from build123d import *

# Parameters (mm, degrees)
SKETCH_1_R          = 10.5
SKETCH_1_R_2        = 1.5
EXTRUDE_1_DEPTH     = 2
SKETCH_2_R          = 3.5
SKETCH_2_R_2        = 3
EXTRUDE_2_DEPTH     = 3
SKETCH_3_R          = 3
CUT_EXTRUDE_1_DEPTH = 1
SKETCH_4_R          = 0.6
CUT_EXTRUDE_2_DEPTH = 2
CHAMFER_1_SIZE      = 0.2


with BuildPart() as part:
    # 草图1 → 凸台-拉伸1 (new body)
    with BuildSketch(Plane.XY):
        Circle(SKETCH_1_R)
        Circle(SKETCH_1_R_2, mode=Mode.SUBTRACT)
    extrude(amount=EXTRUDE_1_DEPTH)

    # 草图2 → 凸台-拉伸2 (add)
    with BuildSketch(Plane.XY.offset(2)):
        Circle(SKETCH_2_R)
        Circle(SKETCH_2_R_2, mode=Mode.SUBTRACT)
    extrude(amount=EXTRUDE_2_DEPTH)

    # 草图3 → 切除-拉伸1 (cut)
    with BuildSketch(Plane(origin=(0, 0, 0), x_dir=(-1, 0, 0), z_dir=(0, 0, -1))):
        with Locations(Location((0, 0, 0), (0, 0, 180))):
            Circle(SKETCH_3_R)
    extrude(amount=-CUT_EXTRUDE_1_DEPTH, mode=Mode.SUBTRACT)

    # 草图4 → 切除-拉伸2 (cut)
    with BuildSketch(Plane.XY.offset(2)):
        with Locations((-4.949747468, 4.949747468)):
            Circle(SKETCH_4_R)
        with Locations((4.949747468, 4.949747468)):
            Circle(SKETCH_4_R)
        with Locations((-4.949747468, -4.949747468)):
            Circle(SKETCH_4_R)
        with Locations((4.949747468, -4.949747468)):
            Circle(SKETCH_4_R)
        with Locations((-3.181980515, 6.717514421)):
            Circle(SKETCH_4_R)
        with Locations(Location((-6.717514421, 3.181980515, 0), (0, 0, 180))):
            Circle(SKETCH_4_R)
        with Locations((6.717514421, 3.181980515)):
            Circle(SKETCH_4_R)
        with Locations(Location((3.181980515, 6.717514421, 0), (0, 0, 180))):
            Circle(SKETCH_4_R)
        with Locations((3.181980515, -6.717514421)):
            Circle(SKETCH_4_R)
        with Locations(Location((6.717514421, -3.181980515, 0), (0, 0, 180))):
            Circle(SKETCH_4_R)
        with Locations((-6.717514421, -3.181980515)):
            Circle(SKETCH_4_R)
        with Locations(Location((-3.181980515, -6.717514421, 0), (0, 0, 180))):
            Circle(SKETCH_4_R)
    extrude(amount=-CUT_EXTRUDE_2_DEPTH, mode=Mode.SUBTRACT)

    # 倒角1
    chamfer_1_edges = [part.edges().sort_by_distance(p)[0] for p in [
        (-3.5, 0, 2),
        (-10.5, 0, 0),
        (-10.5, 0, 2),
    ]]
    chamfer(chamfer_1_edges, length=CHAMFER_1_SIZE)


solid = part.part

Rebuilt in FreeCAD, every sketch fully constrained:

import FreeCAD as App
import Part
import Sketcher
Q = App.Units.Quantity


def edges_at(feature, points):
    """Names of the edges that pass closest to the given points."""
    edges = feature.Shape.Edges
    near = lambda p: min(range(len(edges)), key=lambda i: edges[i].distToShape(Part.Vertex(*p))[0])
    return sorted({f"Edge{near(p) + 1}" for p in points})

doc = App.newDocument("Part")
body = doc.addObject("PartDesign::Body", "Body")

# Sketch on XY plane
sketch1 = doc.addObject("Sketcher::SketchObject", "Sketch")
body.addObject(sketch1)
sketch1.AttachmentSupport = (doc.XY_Plane, [""])
sketch1.MapMode = "FlatFace"
sketch1.addGeometry([
    Part.Circle(App.Vector(0, 0, 0), App.Vector(0, 0, 1), 10.5),
    Part.Circle(App.Vector(0, 0, 0), App.Vector(0, 0, 1), 1.5),
], False)
sketch1.addConstraint([
    Sketcher.Constraint("Coincident", 0, 3, -1, 1),
    Sketcher.Constraint("Coincident", 1, 3, -1, 1),
    Sketcher.Constraint("Diameter", 0, Q("21 mm")),
    Sketcher.Constraint("Diameter", 1, Q("3 mm")),
])
pad1 = doc.addObject("PartDesign::Pad", "Pad")
body.addObject(pad1)
pad1.Profile = sketch1
pad1.Length = 2

# Sketch on XY plane
sketch2 = doc.addObject("Sketcher::SketchObject", "Sketch001")
body.addObject(sketch2)
sketch2.AttachmentSupport = (doc.XY_Plane, [""])
sketch2.MapMode = "FlatFace"
sketch2.AttachmentOffset = App.Placement(App.Vector(0, 0, 2), App.Rotation())
sketch2.addGeometry([
    Part.Circle(App.Vector(0, 0, 0), App.Vector(0, 0, 1), 3.5),
    Part.Circle(App.Vector(0, 0, 0), App.Vector(0, 0, 1), 3),
], False)
sketch2.addConstraint([
    Sketcher.Constraint("Coincident", 0, 3, -1, 1),
    Sketcher.Constraint("Coincident", 1, 3, -1, 1),
    Sketcher.Constraint("Diameter", 0, Q("7 mm")),
    Sketcher.Constraint("Diameter", 1, Q("6 mm")),
])
pad2 = doc.addObject("PartDesign::Pad", "Pad001")
body.addObject(pad2)
pad2.Profile = sketch2
pad2.Length = 3

# Sketch on XY plane
sketch3 = doc.addObject("Sketcher::SketchObject", "Sketch002")
body.addObject(sketch3)
sketch3.AttachmentSupport = (doc.XY_Plane, [""])
sketch3.MapMode = "FlatFace"
sketch3.addGeometry(Part.Circle(App.Vector(0, 0, 0), App.Vector(0, 0, 1), 3), False)
sketch3.addConstraint([
    Sketcher.Constraint("Coincident", 0, 3, -1, 1),
    Sketcher.Constraint("Diameter", 0, Q("6 mm")),
])
pocket1 = doc.addObject("PartDesign::Pocket", "Pocket")
body.addObject(pocket1)
pocket1.Profile = sketch3
pocket1.Length = 1
pocket1.Reversed = True

# Sketch on XY plane
sketch4 = doc.addObject("Sketcher::SketchObject", "Sketch003")
body.addObject(sketch4)
sketch4.AttachmentSupport = (doc.XY_Plane, [""])
sketch4.MapMode = "FlatFace"
sketch4.AttachmentOffset = App.Placement(App.Vector(0, 0, 2), App.Rotation())
sketch4.addGeometry([
    Part.Circle(App.Vector(-4.949747, 4.949747, 0), App.Vector(0, 0, 1), 0.6),  # 0
    Part.Circle(App.Vector(4.949747, 4.949747, 0), App.Vector(0, 0, 1), 0.6),  # 1
    Part.Circle(App.Vector(-4.949747, -4.949747, 0), App.Vector(0, 0, 1), 0.6),  # 2
    Part.Circle(App.Vector(4.949747, -4.949747, 0), App.Vector(0, 0, 1), 0.6),  # 3
    Part.Circle(App.Vector(-3.181981, 6.717514, 0), App.Vector(0, 0, 1), 0.6),  # 4
    Part.Circle(App.Vector(-6.717514, 3.181981, 0), App.Vector(0, 0, 1), 0.6),  # 5
    Part.Circle(App.Vector(6.717514, 3.181981, 0), App.Vector(0, 0, 1), 0.6),  # 6
    Part.Circle(App.Vector(3.181981, 6.717514, 0), App.Vector(0, 0, 1), 0.6),  # 7
    Part.Circle(App.Vector(3.181981, -6.717514, 0), App.Vector(0, 0, 1), 0.6),  # 8
    Part.Circle(App.Vector(6.717514, -3.181981, 0), App.Vector(0, 0, 1), 0.6),  # 9
    Part.Circle(App.Vector(-6.717514, -3.181981, 0), App.Vector(0, 0, 1), 0.6),  # 10
    Part.Circle(App.Vector(-3.181981, -6.717514, 0), App.Vector(0, 0, 1), 0.6),  # 11
], False)
sketch4.addConstraint([
    Sketcher.Constraint("Equal", 0, 1),
    Sketcher.Constraint("Equal", 1, 2),
    Sketcher.Constraint("Equal", 2, 3),
    Sketcher.Constraint("Equal", 3, 4),
    Sketcher.Constraint("Equal", 4, 5),
    Sketcher.Constraint("Equal", 5, 6),
    Sketcher.Constraint("Equal", 6, 7),
    Sketcher.Constraint("Equal", 7, 8),
    Sketcher.Constraint("Equal", 8, 9),
    Sketcher.Constraint("Equal", 9, 10),
    Sketcher.Constraint("Equal", 10, 11),
    Sketcher.Constraint("Symmetric", 1, 3, 2, 3, -1, 1),
    Sketcher.Constraint("Symmetric", 0, 3, 3, 3, -1, 1),
    Sketcher.Constraint("Symmetric", 4, 3, 8, 3, -1, 1),
    Sketcher.Constraint("Symmetric", 5, 3, 9, 3, -1, 1),
    Sketcher.Constraint("Symmetric", 6, 3, 10, 3, -1, 1),
    Sketcher.Constraint("Symmetric", 7, 3, 11, 3, -1, 1),
    Sketcher.Constraint("Symmetric", 0, 3, 1, 3, -2),
    Sketcher.Constraint("Symmetric", 5, 3, 6, 3, -2),
    Sketcher.Constraint("Symmetric", 4, 3, 7, 3, -2),
    Sketcher.Constraint("Diameter", 0, Q("1.2 mm")),
    Sketcher.Constraint("DistanceX", 4, 3, -1, 1, Q("3.181981 mm")),
    Sketcher.Constraint("DistanceY", -1, 1, 5, 3, Q("3.181981 mm")),
    Sketcher.Constraint("DistanceY", 2, 3, 4, 3, Q("11.667262 mm")),
    Sketcher.Constraint("DistanceX", 5, 3, 1, 3, Q("11.667262 mm")),
    Sketcher.Constraint("DistanceX", 5, 3, 6, 3, Q("13.435029 mm")),
    Sketcher.Constraint("DistanceY", 8, 3, 7, 3, Q("13.435029 mm")),
])
pocket2 = doc.addObject("PartDesign::Pocket", "Pocket001")
body.addObject(pocket2)
pocket2.Profile = sketch4
pocket2.Length = 2
doc.recompute()

chamfer = doc.addObject("PartDesign::Chamfer", "Chamfer")
body.addObject(chamfer)
chamfer.Base = (pocket2, edges_at(pocket2, [(-3.5, 0, 2), (-10.5, 0, 0), (-10.5, 0, 2)]))
chamfer.Size = 0.2

doc.recompute()
